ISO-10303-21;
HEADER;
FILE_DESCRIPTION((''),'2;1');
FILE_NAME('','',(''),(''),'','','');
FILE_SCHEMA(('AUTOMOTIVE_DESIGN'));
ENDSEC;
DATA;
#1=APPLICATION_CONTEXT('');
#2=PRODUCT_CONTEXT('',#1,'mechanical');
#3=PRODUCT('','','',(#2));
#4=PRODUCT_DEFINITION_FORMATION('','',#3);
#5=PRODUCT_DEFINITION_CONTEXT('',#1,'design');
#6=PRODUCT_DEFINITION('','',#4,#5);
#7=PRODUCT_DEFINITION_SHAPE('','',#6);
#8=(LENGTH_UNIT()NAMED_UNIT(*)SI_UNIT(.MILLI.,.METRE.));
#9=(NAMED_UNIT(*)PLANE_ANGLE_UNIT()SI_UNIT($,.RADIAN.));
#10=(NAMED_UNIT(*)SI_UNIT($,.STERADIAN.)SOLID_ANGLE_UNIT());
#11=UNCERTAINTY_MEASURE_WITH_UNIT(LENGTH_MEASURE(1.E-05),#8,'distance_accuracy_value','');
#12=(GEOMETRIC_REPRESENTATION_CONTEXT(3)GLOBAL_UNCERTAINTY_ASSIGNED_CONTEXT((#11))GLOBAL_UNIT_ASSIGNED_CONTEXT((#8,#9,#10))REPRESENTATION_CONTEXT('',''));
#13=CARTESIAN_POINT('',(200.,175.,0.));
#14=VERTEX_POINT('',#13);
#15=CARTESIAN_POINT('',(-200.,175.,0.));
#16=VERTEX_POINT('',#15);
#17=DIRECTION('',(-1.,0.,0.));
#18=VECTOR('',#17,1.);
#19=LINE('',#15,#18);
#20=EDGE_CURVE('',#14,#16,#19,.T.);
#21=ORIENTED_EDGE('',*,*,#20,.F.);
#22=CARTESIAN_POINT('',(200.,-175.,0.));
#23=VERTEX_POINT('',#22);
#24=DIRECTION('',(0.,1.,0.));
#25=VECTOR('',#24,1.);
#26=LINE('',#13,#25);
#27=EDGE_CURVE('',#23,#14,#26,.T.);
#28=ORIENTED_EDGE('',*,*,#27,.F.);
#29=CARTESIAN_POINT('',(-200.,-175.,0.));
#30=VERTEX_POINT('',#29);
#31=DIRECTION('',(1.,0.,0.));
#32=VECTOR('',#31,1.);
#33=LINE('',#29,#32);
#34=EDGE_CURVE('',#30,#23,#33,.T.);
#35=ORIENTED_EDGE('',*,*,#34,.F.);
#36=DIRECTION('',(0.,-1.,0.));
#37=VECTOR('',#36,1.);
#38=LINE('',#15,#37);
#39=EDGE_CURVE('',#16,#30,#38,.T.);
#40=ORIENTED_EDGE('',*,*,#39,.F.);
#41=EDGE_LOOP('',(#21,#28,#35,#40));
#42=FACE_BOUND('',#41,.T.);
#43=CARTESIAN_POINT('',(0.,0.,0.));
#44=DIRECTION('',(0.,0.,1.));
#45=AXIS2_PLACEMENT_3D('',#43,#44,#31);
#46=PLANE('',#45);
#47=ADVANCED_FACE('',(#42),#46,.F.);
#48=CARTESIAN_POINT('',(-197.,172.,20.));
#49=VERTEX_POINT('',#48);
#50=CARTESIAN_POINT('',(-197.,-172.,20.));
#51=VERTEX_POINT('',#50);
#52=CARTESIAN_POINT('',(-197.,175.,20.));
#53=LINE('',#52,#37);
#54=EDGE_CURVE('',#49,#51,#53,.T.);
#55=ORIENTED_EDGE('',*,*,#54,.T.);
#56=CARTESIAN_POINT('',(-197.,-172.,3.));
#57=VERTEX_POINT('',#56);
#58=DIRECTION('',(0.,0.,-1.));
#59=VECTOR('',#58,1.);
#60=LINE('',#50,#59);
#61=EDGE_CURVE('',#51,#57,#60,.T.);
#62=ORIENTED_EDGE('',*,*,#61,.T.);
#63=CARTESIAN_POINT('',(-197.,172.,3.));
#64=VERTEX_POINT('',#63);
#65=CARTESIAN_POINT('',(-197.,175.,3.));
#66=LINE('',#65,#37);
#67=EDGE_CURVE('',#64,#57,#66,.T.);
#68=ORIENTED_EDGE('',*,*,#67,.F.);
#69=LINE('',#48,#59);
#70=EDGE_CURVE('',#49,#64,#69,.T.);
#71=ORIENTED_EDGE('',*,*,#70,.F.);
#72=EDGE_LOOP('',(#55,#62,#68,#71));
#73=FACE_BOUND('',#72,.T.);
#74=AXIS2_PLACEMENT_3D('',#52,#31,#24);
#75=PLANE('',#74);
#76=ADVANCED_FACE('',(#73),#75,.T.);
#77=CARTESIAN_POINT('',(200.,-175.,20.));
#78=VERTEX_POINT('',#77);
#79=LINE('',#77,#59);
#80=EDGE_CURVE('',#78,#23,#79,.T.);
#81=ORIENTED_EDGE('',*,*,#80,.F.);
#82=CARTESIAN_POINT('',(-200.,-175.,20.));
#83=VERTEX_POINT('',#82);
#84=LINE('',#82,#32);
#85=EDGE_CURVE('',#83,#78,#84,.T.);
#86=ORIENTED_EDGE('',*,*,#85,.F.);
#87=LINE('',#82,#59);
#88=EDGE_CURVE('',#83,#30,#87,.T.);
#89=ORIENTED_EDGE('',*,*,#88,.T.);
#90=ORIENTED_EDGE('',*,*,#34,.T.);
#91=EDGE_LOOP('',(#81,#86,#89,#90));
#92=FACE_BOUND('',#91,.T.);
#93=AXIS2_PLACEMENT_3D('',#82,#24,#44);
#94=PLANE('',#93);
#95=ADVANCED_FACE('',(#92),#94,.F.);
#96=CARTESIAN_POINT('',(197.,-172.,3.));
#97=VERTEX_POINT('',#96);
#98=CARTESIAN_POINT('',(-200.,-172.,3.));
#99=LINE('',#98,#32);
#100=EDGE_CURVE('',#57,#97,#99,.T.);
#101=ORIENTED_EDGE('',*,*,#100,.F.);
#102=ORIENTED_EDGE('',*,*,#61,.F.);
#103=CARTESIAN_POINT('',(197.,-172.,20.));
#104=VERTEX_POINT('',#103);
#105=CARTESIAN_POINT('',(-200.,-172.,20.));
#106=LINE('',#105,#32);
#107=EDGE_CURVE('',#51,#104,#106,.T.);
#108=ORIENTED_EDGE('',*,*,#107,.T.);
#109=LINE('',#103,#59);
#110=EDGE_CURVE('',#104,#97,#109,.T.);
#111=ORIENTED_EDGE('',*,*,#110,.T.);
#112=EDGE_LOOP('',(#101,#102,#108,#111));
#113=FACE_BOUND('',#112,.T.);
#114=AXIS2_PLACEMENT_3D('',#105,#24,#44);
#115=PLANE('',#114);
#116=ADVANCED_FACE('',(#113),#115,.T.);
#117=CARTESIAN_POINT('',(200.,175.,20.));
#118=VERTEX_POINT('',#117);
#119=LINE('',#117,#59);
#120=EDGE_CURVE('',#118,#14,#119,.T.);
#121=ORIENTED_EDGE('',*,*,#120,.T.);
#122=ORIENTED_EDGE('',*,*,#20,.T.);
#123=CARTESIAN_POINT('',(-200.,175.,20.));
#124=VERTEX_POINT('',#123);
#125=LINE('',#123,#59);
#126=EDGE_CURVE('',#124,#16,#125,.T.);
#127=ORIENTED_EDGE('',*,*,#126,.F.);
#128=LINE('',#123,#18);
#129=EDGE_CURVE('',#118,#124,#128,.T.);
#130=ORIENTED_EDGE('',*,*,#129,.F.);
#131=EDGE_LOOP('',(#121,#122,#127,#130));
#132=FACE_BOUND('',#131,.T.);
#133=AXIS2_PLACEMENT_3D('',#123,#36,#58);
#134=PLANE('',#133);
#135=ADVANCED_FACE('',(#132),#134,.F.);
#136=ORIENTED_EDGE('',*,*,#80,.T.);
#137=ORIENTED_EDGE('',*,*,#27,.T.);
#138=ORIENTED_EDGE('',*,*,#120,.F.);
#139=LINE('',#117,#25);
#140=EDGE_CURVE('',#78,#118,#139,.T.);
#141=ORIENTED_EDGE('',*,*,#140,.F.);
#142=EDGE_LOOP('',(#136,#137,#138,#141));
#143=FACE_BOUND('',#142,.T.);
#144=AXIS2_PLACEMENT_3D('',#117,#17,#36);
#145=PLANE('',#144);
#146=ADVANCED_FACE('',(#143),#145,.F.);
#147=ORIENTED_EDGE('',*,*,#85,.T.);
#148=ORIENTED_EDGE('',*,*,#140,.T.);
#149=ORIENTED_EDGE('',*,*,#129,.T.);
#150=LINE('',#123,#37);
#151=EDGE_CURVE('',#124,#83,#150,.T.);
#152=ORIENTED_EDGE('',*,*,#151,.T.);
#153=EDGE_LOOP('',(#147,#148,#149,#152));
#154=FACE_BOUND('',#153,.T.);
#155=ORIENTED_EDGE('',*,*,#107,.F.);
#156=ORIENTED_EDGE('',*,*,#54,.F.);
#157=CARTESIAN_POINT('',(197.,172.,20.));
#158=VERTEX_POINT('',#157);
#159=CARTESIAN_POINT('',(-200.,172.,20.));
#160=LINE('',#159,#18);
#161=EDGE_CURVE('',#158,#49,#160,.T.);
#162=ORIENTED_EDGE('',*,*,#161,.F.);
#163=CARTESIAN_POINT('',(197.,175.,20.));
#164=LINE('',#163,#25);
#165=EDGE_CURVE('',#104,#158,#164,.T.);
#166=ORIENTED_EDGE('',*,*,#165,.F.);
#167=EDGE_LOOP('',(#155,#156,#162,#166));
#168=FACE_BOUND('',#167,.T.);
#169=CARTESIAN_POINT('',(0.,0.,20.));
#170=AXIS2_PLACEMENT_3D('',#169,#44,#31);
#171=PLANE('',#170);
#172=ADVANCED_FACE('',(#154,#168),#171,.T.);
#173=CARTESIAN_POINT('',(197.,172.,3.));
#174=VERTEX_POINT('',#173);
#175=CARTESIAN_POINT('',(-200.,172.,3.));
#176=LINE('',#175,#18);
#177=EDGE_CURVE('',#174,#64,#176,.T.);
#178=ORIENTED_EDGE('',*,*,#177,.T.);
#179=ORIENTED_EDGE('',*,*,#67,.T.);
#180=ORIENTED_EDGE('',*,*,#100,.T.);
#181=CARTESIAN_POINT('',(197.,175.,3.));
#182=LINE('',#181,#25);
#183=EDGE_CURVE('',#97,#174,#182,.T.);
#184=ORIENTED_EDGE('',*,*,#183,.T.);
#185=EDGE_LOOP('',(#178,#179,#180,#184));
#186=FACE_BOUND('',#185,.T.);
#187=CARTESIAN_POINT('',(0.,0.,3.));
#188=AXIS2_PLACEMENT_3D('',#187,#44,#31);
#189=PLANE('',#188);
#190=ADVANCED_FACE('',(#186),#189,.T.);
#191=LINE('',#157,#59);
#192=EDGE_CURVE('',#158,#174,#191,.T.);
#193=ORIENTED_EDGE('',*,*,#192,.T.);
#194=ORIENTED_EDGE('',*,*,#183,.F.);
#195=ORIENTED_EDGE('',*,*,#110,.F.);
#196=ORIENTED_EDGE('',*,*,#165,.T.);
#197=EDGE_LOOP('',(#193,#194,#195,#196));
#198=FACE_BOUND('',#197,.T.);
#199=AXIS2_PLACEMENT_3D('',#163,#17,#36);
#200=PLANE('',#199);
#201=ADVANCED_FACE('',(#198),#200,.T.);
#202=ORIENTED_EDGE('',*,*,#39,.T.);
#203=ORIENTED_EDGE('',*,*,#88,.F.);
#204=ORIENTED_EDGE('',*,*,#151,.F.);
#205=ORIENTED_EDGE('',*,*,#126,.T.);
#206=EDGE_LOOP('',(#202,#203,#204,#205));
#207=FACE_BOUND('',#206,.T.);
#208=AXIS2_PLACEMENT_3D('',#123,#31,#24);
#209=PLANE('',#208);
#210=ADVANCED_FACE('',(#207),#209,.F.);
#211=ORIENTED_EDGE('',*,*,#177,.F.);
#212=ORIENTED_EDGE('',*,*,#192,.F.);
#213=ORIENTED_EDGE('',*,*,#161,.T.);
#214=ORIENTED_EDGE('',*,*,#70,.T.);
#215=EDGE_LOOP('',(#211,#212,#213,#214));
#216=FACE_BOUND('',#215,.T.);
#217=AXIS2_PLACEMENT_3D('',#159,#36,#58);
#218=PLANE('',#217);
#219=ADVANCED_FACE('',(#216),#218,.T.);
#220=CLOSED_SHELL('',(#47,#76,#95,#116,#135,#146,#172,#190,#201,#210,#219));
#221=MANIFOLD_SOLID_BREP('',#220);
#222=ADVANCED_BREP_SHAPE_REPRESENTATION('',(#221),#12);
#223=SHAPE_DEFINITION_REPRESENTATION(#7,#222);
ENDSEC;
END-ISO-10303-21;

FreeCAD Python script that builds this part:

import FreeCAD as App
import Part
import Sketcher
Q = App.Units.Quantity


def faces_at(feature, points):
    """Names of the faces that lie closest to the given points."""
    faces = feature.Shape.Faces
    near = lambda p: min(range(len(faces)), key=lambda i: faces[i].distToShape(Part.Vertex(*p))[0])
    return sorted({f"Face{near(p) + 1}" for p in points})

doc = App.newDocument("Part")
body = doc.addObject("PartDesign::Body", "Body")

# Sketch on XY plane
sketch1 = doc.addObject("Sketcher::SketchObject", "Sketch")
body.addObject(sketch1)
sketch1.AttachmentSupport = (doc.XY_Plane, [""])
sketch1.MapMode = "FlatFace"
sketch1.addGeometry(Part.LineSegment(App.Vector(-200, 175, 0), App.Vector(-200, -175, 0)), False)
sketch1.addGeometry(Part.LineSegment(App.Vector(-200, -175, 0), App.Vector(200, -175, 0)), False)
sketch1.addGeometry(Part.LineSegment(App.Vector(200, -175, 0), App.Vector(200, 175, 0)), False)
sketch1.addGeometry(Part.LineSegment(App.Vector(200, 175, 0), App.Vector(-200, 175, 0)), False)
sketch1.addConstraint(Sketcher.Constraint("Coincident", 0, 2, 1, 1))
sketch1.addConstraint(Sketcher.Constraint("Coincident", 1, 2, 2, 1))
sketch1.addConstraint(Sketcher.Constraint("Coincident", 2, 2, 3, 1))
sketch1.addConstraint(Sketcher.Constraint("Coincident", 3, 2, 0, 1))
sketch1.addConstraint(Sketcher.Constraint("Vertical", 0))
sketch1.addConstraint(Sketcher.Constraint("Horizontal", 1))
sketch1.addConstraint(Sketcher.Constraint("Vertical", 2))
sketch1.addConstraint(Sketcher.Constraint("Horizontal", 3))
sketch1.addConstraint(Sketcher.Constraint("Symmetric", 0, 2, 2, 2, -1, 1))
sketch1.addConstraint(Sketcher.Constraint("DistanceX", 1, 1, 1, 2, Q("400 mm")))
sketch1.addConstraint(Sketcher.Constraint("DistanceY", 0, 2, 0, 1, Q("350 mm")))
pad1 = doc.addObject("PartDesign::Pad", "Pad")
body.addObject(pad1)
pad1.Profile = sketch1
pad1.Length = 20
doc.recompute()

thickness = doc.addObject("PartDesign::Thickness", "Thickness")
body.addObject(thickness)
thickness.Base = (pad1, faces_at(pad1, [(0, 0, 20)]))
thickness.Value = 3
thickness.Reversed = True
thickness.Join = "Intersection"

doc.recompute()
